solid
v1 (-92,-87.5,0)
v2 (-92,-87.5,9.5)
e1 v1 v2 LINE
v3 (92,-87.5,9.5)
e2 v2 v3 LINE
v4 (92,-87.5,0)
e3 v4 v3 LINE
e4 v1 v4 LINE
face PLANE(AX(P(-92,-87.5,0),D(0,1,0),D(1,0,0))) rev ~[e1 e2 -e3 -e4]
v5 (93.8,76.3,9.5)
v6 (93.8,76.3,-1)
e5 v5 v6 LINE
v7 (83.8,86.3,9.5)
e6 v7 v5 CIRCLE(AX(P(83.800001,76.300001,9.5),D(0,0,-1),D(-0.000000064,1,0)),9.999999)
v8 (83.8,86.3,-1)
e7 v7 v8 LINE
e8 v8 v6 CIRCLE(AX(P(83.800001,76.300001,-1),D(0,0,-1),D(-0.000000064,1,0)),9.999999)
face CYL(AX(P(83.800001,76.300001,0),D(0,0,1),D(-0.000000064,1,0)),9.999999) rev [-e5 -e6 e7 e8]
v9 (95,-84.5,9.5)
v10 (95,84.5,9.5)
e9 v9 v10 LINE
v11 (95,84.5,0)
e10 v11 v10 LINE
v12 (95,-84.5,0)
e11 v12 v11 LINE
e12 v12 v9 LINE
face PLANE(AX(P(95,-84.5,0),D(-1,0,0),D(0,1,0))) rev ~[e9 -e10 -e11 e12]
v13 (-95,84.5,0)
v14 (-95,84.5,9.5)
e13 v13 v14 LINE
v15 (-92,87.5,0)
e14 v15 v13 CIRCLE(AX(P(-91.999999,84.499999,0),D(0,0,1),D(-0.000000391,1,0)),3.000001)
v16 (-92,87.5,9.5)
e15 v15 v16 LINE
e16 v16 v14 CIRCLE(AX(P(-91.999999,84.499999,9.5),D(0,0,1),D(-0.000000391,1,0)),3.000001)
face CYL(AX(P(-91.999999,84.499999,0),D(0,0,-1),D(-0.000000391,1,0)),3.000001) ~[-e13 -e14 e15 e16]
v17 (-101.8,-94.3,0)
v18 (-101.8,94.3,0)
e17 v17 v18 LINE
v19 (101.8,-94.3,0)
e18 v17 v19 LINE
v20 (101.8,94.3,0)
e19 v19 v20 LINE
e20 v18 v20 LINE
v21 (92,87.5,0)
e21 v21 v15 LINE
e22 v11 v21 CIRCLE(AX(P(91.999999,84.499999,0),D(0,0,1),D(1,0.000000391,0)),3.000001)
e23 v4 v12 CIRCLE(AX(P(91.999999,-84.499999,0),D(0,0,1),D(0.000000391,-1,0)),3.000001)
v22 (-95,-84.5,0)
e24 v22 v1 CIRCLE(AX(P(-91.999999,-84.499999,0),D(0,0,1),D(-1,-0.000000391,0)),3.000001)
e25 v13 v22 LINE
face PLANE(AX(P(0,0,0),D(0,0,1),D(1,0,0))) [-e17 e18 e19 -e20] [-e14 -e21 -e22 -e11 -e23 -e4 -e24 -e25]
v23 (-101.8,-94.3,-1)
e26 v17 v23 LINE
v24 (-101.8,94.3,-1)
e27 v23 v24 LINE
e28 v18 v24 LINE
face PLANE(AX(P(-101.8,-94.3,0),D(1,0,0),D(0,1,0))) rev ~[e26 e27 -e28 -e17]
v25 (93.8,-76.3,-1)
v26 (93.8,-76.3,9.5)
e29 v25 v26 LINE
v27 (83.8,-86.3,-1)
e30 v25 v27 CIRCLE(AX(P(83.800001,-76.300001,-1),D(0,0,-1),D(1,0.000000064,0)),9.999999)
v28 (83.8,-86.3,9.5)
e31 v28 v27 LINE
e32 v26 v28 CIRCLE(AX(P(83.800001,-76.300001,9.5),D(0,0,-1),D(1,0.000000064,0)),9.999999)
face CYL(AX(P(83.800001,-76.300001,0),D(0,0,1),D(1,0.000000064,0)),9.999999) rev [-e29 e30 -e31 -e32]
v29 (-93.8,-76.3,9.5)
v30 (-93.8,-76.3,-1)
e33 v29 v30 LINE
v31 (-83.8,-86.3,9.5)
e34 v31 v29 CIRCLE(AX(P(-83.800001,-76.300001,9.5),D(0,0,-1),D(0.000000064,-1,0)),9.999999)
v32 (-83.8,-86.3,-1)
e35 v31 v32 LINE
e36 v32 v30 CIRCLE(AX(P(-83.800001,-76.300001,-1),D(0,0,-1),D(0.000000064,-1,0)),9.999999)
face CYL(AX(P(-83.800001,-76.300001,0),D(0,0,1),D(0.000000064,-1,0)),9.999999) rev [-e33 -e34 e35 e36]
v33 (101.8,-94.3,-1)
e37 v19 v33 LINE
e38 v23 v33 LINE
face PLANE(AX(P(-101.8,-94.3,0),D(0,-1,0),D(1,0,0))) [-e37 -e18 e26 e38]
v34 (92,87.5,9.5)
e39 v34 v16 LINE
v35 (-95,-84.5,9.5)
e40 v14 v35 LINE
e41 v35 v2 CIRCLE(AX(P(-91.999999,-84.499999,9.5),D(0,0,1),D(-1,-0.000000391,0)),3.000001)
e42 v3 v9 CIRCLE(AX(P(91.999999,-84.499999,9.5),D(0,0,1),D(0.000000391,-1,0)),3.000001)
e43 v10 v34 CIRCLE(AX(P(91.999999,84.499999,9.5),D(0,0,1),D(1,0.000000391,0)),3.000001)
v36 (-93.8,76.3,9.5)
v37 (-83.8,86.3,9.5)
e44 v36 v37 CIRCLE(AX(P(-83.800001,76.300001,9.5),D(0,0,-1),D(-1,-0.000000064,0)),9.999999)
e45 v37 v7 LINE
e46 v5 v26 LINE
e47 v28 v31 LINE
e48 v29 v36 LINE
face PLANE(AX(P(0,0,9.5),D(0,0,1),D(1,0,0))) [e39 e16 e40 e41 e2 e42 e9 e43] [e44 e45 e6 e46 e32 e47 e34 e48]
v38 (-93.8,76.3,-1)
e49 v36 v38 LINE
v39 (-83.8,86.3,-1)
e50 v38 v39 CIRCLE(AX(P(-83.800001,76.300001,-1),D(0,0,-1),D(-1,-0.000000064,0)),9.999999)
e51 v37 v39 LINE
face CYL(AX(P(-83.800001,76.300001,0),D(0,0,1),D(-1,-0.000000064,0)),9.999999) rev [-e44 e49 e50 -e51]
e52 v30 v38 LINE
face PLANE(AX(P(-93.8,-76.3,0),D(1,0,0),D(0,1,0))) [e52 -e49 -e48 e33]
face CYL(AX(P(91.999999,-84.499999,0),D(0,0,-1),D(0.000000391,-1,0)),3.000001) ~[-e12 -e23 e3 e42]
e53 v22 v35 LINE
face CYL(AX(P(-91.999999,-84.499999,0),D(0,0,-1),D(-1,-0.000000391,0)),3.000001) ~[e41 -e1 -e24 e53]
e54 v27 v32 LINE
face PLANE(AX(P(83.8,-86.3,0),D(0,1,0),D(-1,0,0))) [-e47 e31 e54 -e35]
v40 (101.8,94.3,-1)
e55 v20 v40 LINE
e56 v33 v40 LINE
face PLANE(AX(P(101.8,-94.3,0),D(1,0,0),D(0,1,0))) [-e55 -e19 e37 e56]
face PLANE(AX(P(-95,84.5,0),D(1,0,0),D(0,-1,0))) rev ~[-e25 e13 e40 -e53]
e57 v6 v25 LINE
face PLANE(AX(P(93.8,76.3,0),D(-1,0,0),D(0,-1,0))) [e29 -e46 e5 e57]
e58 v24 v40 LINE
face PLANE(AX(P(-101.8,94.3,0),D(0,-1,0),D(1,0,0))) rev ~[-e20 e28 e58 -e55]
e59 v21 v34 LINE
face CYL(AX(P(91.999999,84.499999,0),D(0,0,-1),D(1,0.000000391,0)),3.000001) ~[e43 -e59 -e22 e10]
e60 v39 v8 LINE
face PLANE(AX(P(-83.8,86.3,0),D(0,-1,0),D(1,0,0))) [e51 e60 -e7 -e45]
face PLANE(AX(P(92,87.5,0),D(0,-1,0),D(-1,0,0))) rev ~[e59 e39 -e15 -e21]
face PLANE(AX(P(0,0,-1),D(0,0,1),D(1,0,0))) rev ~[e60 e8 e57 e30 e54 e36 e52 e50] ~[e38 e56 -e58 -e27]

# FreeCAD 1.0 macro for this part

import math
import FreeCAD as App
import Part
import Sketcher
from FreeCAD import Vector
Q = App.Units.Quantity


def add_polygon(sketch, points):
    """Adds a closed chain of lines whose ends are joined by coincident constraints."""
    first, n = sketch.GeometryCount, len(points)
    for a, b in zip(points, points[1:] + points[:1]):
        sketch.addGeometry(Part.LineSegment(App.Vector(*a, 0), App.Vector(*b, 0)), False)
    for i in range(n):
        sketch.addConstraint(Sketcher.Constraint("Coincident", first + i, 2, first + (i + 1) % n, 1))

doc = App.newDocument("Part")
params = doc.addObject("Spreadsheet::Sheet", "Params")
for row, (alias, value) in enumerate([
    ("sketch1_radius", "3.000001 mm"),
    ("sketch1_radius2", "9.999999 mm"),
    ("sketch1_width", "184 mm"),
    ("sketch1_height", "169 mm"),
    ("sketch1_width2", "167.6 mm"),
    ("pad1_length", "9.5 mm"),
    ("sketch2_radius", "9.999999 mm"),
    ("sketch2_width", "203.6 mm"),
    ("sketch2_width2", "167.6 mm"),
    ("sketch2_height", "188.6 mm"),
    ("sketch2_height2", "152.6 mm"),
    ("pad2_length", "1 mm"),
], start=1):
    params.set(f"A{row}", alias)
    params.set(f"B{row}", "=" + value)
    params.setAlias(f"B{row}", alias)

body = doc.addObject("PartDesign::Body", "Body")

# Sketch on XY plane
sketch1 = body.newObject("Sketcher::SketchObject", "Sketch")
sketch1.AttachmentSupport = (doc.getObject("XY_Plane"), [""])
sketch1.MapMode = "FlatFace"
sketch1.addGeometry(Part.LineSegment(Vector(-92, -87.5, 0), Vector(92, -87.5, 0)), False)
sketch1.addGeometry(Part.ArcOfCircle(Part.Circle(Vector(92, -84.5, 0), Vector(0, 0, 1), 3), math.radians(-90), math.radians(0)), False)
sketch1.addGeometry(Part.LineSegment(Vector(95, -84.5, 0), Vector(95, 84.5, 0)), False)
sketch1.addGeometry(Part.ArcOfCircle(Part.Circle(Vector(92, 84.5, 0), Vector(0, 0, 1), 3), math.radians(0), math.radians(90)), False)
sketch1.addGeometry(Part.LineSegment(Vector(92, 87.5, 0), Vector(-92, 87.5, 0)), False)
sketch1.addGeometry(Part.ArcOfCircle(Part.Circle(Vector(-92, 84.5, 0), Vector(0, 0, 1), 3), math.radians(90), math.radians(180)), False)
sketch1.addGeometry(Part.LineSegment(Vector(-95, 84.5, 0), Vector(-95, -84.5, 0)), False)
sketch1.addGeometry(Part.ArcOfCircle(Part.Circle(Vector(-92, -84.5, 0), Vector(0, 0, 1), 3), math.radians(-180), math.radians(-90)), False)
sketch1.addGeometry(Part.LineSegment(Vector(93.8, 76.3, 0), Vector(93.8, -76.3, 0)), False)
sketch1.addGeometry(Part.ArcOfCircle(Part.Circle(Vector(83.8, -76.3, 0), Vector(0, 0, 1), 10), math.radians(-90), math.radians(0)), False)
sketch1.addGeometry(Part.LineSegment(Vector(83.8, -86.3, 0), Vector(-83.8, -86.3, 0)), False)
sketch1.addGeometry(Part.ArcOfCircle(Part.Circle(Vector(-83.8, -76.3, 0), Vector(0, 0, 1), 10), math.radians(180), math.radians(270)), False)
sketch1.addGeometry(Part.LineSegment(Vector(-93.8, -76.3, 0), Vector(-93.8, 76.3, 0)), False)
sketch1.addGeometry(Part.ArcOfCircle(Part.Circle(Vector(-83.8, 76.3, 0), Vector(0, 0, 1), 10), math.radians(90), math.radians(180)), False)
sketch1.addGeometry(Part.LineSegment(Vector(-83.8, 86.3, 0), Vector(83.8, 86.3, 0)), False)
sketch1.addGeometry(Part.ArcOfCircle(Part.Circle(Vector(83.8, 76.3, 0), Vector(0, 0, 1), 10), math.radians(0), math.radians(90)), False)
sketch1.addConstraint(Sketcher.Constraint("Tangent", 0, 2, 1, 1))
sketch1.addConstraint(Sketcher.Constraint("Tangent", 1, 2, 2, 1))
sketch1.addConstraint(Sketcher.Constraint("Tangent", 2, 2, 3, 1))
sketch1.addConstraint(Sketcher.Constraint("Tangent", 3, 2, 4, 1))
sketch1.addConstraint(Sketcher.Constraint("Tangent", 4, 2, 5, 1))
sketch1.addConstraint(Sketcher.Constraint("Tangent", 5, 2, 6, 1))
sketch1.addConstraint(Sketcher.Constraint("Tangent", 6, 2, 7, 1))
sketch1.addConstraint(Sketcher.Constraint("Tangent", 7, 2, 0, 1))
sketch1.addConstraint(Sketcher.Constraint("Tangent", 8, 2, 9, 2))
sketch1.addConstraint(Sketcher.Constraint("Tangent", 9, 1, 10, 1))
sketch1.addConstraint(Sketcher.Constraint("Tangent", 10, 2, 11, 2))
sketch1.addConstraint(Sketcher.Constraint("Tangent", 11, 1, 12, 1))
sketch1.addConstraint(Sketcher.Constraint("Tangent", 12, 2, 13, 2))
sketch1.addConstraint(Sketcher.Constraint("Tangent", 13, 1, 14, 1))
sketch1.addConstraint(Sketcher.Constraint("Tangent", 14, 2, 15, 2))
sketch1.addConstraint(Sketcher.Constraint("Tangent", 15, 1, 8, 1))
sketch1.addConstraint(Sketcher.Constraint("Horizontal", 0))
sketch1.addConstraint(Sketcher.Constraint("Vertical", 2))
sketch1.addConstraint(Sketcher.Constraint("Horizontal", 4))
sketch1.addConstraint(Sketcher.Constraint("Vertical", 6))
sketch1.addConstraint(Sketcher.Constraint("Vertical", 8))
sketch1.addConstraint(Sketcher.Constraint("Horizontal", 10))
sketch1.addConstraint(Sketcher.Constraint("Vertical", 12))
sketch1.addConstraint(Sketcher.Constraint("Horizontal", 14))
sketch1.addConstraint(Sketcher.Constraint("Equal", 1, 3))
sketch1.addConstraint(Sketcher.Constraint("Equal", 3, 5))
sketch1.addConstraint(Sketcher.Constraint("Equal", 5, 7))
sketch1.addConstraint(Sketcher.Constraint("Equal", 9, 11))
sketch1.addConstraint(Sketcher.Constraint("Equal", 11, 13))
sketch1.addConstraint(Sketcher.Constraint("Equal", 13, 15))
sketch1.addConstraint(Sketcher.Constraint("Symmetric", 1, 3, 5, 3, -1, 1))
sketch1.addConstraint(Sketcher.Constraint("Symmetric", 9, 3, 13, 3, -1, 1))
sketch1.addConstraint(Sketcher.Constraint("Radius", 1, Q("3.000001 mm")))
sketch1.addConstraint(Sketcher.Constraint("Radius", 9, Q("9.999999 mm")))
sketch1.addConstraint(Sketcher.Constraint("DistanceX", 0, 1, 0, 2, Q("184 mm")))
sketch1.addConstraint(Sketcher.Constraint("DistanceY", 2, 1, 2, 2, Q("169 mm")))
sketch1.addConstraint(Sketcher.Constraint("DistanceX", 10, 2, 10, 1, Q("167.6 mm")))
sketch1.addConstraint(Sketcher.Constraint("DistanceY", 8, 2, 8, 1, Q("152.6 mm")))
sketch1.setExpression("Constraints[32]", "Params.sketch1_radius")
sketch1.setExpression("Constraints[33]", "Params.sketch1_radius2")
sketch1.setExpression("Constraints[34]", "Params.sketch1_width")
sketch1.setExpression("Constraints[35]", "Params.sketch1_height")
sketch1.setExpression("Constraints[36]", "Params.sketch1_width2")
pad1 = body.newObject("PartDesign::Pad", "Pad")
pad1.Profile = sketch1
pad1.setExpression("Length", "Params.pad1_length")

# Sketch on XY plane
sketch2 = body.newObject("Sketcher::SketchObject", "Sketch001")
sketch2.AttachmentSupport = (doc.getObject("XY_Plane"), [""])
sketch2.MapMode = "FlatFace"
add_polygon(sketch2, [(-102, 94), (-102, -94), (102, -94), (102, 94)])  # lines 0-3
sketch2.addGeometry(Part.LineSegment(Vector(94, 76, 0), Vector(94, -76, 0)), False)  # 4
sketch2.addGeometry(Part.ArcOfCircle(Part.Circle(Vector(84, -76, 0), Vector(0, 0, 1), 10), math.radians(-90), math.radians(0)), False)  # 5
sketch2.addGeometry(Part.LineSegment(Vector(84, -86, 0), Vector(-84, -86, 0)), False)  # 6
sketch2.addGeometry(Part.ArcOfCircle(Part.Circle(Vector(-84, -76, 0), Vector(0, 0, 1), 10), math.radians(180), math.radians(270)), False)  # 7
sketch2.addGeometry(Part.LineSegment(Vector(-94, -76, 0), Vector(-94, 76, 0)), False)  # 8
sketch2.addGeometry(Part.ArcOfCircle(Part.Circle(Vector(-84, 76, 0), Vector(0, 0, 1), 10), math.radians(90), math.radians(180)), False)  # 9
sketch2.addGeometry(Part.LineSegment(Vector(-84, 86, 0), Vector(84, 86, 0)), False)  # 10
sketch2.addGeometry(Part.ArcOfCircle(Part.Circle(Vector(84, 76, 0), Vector(0, 0, 1), 10), math.radians(0), math.radians(90)), False)  # 11
sketch2.addConstraint(Sketcher.Constraint("Tangent", 4, 2, 5, 2))
sketch2.addConstraint(Sketcher.Constraint("Tangent", 5, 1, 6, 1))
sketch2.addConstraint(Sketcher.Constraint("Tangent", 6, 2, 7, 2))
sketch2.addConstraint(Sketcher.Constraint("Tangent", 7, 1, 8, 1))
sketch2.addConstraint(Sketcher.Constraint("Tangent", 8, 2, 9, 2))
sketch2.addConstraint(Sketcher.Constraint("Tangent", 9, 1, 10, 1))
sketch2.addConstraint(Sketcher.Constraint("Tangent", 10, 2, 11, 2))
sketch2.addConstraint(Sketcher.Constraint("Tangent", 11, 1, 4, 1))
sketch2.addConstraint(Sketcher.Constraint("Vertical", 0))
sketch2.addConstraint(Sketcher.Constraint("Horizontal", 1))
sketch2.addConstraint(Sketcher.Constraint("Vertical", 2))
sketch2.addConstraint(Sketcher.Constraint("Horizontal", 3))
sketch2.addConstraint(Sketcher.Constraint("Vertical", 4))
sketch2.addConstraint(Sketcher.Constraint("Horizontal", 6))
sketch2.addConstraint(Sketcher.Constraint("Vertical", 8))
sketch2.addConstraint(Sketcher.Constraint("Horizontal", 10))
sketch2.addConstraint(Sketcher.Constraint("Equal", 5, 7))
sketch2.addConstraint(Sketcher.Constraint("Equal", 7, 9))
sketch2.addConstraint(Sketcher.Constraint("Equal", 9, 11))
sketch2.addConstraint(Sketcher.Constraint("Symmetric", 5, 3, 9, 3, -1, 1))
sketch2.addConstraint(Sketcher.Constraint("Symmetric", 0, 2, 2, 2, -1, 1))
sketch2.addConstraint(Sketcher.Constraint("Radius", 5, Q("9.999999 mm")))
sketch2.addConstraint(Sketcher.Constraint("DistanceX", 1, 1, 1, 2, Q("203.6 mm")))
sketch2.addConstraint(Sketcher.Constraint("DistanceX", 6, 2, 6, 1, Q("167.6 mm")))
sketch2.addConstraint(Sketcher.Constraint("DistanceY", 0, 2, 0, 1, Q("188.6 mm")))
sketch2.addConstraint(Sketcher.Constraint("DistanceY", 4, 2, 4, 1, Q("152.6 mm")))
sketch2.setExpression("Constraints[25]", "Params.sketch2_radius")
sketch2.setExpression("Constraints[26]", "Params.sketch2_width")
sketch2.setExpression("Constraints[27]", "Params.sketch2_width2")
sketch2.setExpression("Constraints[28]", "Params.sketch2_height")
sketch2.setExpression("Constraints[29]", "Params.sketch2_height2")
pad2 = body.newObject("PartDesign::Pad", "Pad001")
pad2.Profile = sketch2
pad2.setExpression("Length", "Params.pad2_length")
pad2.Reversed = True

doc.recompute()
